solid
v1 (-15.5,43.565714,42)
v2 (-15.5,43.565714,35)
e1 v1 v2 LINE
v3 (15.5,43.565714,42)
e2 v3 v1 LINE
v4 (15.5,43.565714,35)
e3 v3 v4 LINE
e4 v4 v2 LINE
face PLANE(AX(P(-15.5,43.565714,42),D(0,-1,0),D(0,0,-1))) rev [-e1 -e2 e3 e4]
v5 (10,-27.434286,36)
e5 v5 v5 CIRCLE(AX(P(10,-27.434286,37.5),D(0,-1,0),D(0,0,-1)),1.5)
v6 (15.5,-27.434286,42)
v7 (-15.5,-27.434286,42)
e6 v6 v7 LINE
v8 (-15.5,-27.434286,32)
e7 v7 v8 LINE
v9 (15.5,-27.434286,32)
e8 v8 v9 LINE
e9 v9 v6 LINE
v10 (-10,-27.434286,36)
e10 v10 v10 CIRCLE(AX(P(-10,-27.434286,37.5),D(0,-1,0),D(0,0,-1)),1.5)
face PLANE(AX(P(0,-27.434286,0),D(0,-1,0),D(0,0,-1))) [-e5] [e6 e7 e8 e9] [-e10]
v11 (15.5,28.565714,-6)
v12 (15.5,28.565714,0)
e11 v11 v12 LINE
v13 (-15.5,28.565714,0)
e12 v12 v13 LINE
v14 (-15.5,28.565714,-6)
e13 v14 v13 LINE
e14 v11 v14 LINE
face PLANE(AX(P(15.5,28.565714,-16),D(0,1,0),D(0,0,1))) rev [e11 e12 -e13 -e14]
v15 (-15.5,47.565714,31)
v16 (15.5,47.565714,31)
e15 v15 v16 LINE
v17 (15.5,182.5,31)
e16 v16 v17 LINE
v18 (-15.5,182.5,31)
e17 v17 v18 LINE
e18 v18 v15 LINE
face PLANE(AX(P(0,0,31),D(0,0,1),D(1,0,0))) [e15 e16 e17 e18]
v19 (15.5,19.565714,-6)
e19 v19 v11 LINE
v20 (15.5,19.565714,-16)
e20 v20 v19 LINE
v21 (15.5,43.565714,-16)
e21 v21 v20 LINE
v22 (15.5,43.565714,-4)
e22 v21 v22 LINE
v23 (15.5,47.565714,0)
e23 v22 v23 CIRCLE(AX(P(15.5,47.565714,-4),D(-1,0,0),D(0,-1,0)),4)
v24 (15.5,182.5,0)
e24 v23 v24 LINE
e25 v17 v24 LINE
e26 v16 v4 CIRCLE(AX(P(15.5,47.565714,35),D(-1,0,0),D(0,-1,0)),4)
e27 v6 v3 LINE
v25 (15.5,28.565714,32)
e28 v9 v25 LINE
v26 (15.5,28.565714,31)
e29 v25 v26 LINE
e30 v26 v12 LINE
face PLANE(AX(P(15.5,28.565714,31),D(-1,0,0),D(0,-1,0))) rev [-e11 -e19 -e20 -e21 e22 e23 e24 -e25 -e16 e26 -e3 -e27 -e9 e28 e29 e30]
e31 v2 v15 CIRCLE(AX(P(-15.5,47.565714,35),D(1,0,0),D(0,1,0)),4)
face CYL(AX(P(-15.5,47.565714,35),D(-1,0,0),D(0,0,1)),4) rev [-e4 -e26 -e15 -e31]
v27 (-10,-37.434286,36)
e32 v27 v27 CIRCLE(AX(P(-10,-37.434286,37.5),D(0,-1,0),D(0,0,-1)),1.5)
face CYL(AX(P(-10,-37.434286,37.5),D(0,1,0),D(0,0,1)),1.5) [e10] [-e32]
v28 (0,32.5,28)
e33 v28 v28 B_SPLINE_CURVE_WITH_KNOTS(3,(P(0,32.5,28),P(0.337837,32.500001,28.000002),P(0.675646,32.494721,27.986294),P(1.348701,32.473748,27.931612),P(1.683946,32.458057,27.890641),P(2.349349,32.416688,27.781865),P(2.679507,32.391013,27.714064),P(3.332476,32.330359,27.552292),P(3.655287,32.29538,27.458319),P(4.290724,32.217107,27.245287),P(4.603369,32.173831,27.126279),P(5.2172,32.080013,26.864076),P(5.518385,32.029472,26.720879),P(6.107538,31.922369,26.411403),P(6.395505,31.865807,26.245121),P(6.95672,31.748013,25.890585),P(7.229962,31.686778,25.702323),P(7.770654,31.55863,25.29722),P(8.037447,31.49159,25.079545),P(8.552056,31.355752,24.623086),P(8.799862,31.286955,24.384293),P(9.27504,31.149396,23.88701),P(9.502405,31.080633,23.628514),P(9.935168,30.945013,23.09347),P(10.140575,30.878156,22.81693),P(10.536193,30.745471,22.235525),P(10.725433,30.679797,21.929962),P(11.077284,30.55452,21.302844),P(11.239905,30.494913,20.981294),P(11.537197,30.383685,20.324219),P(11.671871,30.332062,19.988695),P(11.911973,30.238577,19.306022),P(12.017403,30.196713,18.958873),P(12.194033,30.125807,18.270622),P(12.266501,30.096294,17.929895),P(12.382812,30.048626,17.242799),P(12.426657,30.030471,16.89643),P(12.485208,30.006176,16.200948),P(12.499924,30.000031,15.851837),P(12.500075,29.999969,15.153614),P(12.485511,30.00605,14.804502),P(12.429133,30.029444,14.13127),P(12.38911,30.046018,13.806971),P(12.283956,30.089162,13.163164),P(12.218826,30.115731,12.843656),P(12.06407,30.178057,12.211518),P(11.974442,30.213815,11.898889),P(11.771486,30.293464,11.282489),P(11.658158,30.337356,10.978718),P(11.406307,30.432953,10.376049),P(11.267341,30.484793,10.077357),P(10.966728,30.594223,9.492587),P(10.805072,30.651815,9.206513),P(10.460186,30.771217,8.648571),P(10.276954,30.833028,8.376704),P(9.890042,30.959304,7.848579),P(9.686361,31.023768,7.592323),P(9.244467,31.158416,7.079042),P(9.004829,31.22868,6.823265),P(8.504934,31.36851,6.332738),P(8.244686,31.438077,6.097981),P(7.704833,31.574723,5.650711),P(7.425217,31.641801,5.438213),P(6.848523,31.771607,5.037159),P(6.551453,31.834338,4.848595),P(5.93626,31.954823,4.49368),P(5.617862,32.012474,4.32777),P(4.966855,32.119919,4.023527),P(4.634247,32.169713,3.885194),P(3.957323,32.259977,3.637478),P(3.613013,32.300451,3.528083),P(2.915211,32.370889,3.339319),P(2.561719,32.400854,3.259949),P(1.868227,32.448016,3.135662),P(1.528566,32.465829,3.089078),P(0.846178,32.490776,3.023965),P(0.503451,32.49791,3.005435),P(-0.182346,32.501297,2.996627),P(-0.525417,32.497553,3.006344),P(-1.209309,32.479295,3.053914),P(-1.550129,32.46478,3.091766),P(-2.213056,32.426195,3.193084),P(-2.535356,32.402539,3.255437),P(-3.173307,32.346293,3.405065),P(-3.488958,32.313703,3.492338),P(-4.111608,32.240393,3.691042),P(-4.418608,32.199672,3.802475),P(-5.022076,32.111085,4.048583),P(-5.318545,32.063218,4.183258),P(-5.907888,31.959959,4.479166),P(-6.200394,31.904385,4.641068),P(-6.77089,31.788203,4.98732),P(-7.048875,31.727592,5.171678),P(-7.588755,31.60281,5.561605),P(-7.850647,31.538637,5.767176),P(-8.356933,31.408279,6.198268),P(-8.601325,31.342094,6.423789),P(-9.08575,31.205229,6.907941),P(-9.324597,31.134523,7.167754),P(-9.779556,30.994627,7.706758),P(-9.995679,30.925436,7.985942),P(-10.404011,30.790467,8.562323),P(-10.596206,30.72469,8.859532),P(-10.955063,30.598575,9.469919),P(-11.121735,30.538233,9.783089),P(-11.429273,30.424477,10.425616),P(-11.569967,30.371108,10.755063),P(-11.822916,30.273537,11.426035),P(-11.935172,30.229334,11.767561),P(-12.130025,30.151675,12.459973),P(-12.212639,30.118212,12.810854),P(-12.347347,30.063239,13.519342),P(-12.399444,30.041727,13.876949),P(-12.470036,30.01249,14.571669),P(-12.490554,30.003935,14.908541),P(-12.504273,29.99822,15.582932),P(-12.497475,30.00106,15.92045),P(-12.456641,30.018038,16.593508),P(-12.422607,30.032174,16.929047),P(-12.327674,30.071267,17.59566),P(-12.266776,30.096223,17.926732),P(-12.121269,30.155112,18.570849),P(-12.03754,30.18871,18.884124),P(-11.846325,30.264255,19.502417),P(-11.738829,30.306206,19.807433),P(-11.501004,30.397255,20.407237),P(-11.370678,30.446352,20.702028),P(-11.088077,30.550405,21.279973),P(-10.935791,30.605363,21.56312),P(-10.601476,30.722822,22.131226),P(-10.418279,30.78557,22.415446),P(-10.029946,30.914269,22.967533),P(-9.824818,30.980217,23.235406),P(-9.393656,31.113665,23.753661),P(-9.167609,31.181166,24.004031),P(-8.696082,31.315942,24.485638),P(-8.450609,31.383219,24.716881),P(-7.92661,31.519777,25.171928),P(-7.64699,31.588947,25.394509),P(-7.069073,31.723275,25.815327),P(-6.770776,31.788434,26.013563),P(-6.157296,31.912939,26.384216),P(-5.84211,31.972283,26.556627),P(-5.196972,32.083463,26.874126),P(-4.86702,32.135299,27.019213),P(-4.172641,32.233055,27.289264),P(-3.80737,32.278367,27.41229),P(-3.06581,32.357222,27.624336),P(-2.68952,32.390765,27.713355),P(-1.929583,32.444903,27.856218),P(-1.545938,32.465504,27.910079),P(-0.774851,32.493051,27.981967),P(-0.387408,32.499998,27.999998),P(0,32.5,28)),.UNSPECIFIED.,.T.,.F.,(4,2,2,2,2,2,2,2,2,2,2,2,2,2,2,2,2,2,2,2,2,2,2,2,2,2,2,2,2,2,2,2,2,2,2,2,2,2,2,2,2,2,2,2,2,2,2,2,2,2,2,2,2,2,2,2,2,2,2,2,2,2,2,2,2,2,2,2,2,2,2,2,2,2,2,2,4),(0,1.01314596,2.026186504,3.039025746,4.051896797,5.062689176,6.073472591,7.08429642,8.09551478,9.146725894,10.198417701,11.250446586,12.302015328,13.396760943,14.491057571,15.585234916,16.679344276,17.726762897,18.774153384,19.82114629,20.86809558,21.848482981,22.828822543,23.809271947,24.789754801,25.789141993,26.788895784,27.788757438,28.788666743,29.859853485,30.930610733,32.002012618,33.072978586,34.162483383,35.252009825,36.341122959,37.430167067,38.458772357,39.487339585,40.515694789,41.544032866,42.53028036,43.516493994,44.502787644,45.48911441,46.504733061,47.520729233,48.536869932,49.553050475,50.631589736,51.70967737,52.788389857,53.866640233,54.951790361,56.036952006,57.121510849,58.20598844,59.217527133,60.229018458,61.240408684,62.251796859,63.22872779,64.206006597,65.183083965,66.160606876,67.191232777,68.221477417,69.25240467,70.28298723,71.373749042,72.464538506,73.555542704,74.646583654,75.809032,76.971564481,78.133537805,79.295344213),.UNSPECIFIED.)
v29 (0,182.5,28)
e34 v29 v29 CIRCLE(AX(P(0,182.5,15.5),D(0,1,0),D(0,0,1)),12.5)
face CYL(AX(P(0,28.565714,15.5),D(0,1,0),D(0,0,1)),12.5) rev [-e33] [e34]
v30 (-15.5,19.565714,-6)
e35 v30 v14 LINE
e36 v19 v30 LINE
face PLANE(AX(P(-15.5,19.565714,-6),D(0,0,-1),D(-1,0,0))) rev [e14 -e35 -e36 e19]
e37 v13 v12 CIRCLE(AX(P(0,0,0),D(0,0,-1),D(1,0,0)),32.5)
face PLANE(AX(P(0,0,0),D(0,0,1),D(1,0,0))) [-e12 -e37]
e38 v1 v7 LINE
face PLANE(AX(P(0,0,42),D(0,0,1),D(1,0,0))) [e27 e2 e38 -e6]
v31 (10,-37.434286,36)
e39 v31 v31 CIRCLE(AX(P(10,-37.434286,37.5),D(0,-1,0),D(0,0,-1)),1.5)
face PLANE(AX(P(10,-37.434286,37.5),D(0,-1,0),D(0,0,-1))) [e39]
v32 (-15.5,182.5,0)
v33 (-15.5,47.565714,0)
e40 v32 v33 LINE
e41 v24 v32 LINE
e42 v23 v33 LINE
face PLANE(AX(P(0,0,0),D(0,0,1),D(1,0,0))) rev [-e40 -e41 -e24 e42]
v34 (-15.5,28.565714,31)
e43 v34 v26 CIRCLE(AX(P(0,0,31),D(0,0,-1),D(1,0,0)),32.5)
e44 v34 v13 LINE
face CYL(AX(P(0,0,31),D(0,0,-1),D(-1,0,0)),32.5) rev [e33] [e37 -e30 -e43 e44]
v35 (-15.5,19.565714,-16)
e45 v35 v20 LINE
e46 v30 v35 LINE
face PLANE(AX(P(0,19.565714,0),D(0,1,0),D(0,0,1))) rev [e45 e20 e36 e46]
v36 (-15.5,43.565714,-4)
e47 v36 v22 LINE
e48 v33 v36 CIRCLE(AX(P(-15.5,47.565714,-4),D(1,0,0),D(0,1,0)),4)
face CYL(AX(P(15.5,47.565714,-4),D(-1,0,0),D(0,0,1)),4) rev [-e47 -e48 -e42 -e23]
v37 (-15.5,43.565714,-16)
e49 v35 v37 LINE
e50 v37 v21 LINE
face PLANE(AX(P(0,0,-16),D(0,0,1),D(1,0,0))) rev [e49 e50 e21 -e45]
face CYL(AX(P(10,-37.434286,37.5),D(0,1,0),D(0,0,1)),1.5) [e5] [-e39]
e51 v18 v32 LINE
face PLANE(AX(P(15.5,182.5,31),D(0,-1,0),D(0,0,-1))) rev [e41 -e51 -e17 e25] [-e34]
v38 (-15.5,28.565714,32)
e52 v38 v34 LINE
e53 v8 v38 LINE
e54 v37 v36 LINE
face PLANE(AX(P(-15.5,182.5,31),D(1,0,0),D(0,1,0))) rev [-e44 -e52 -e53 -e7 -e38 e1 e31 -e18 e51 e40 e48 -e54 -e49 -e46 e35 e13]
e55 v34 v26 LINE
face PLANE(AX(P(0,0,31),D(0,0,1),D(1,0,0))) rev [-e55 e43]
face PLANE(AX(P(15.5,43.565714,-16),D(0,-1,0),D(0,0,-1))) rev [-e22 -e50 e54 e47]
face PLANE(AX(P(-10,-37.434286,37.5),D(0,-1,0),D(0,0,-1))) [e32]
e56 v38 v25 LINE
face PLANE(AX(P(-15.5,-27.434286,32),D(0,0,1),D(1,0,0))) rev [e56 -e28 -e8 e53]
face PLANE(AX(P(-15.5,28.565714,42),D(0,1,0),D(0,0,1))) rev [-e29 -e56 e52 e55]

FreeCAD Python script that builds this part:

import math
import FreeCAD as App
import Part
import Sketcher
from FreeCAD import Vector
Q = App.Units.Quantity


def edges_at(feature, points):
    """Names of the edges that pass closest to the given points."""
    edges = feature.Shape.Edges
    near = lambda p: min(range(len(edges)), key=lambda i: edges[i].distToShape(Part.Vertex(*p))[0])
    return sorted({f"Edge{near(p) + 1}" for p in points})


def add_polygon(sketch, points):
    """Adds a closed chain of lines whose ends are joined by coincident constraints."""
    first, n = sketch.GeometryCount, len(points)
    for a, b in zip(points, points[1:] + points[:1]):
        sketch.addGeometry(Part.LineSegment(App.Vector(*a, 0), App.Vector(*b, 0)), False)
    for i in range(n):
        sketch.addConstraint(Sketcher.Constraint("Coincident", first + i, 2, first + (i + 1) % n, 1))

doc = App.newDocument("Part")
body = doc.addObject("PartDesign::Body", "Body")

# Sketch on XY plane
sketch1 = body.newObject("Sketcher::SketchObject", "Sketch")
sketch1.AttachmentSupport = (doc.getObject("XY_Plane"), [""])
sketch1.MapMode = "FlatFace"
sketch1.addGeometry([
    Part.LineSegment(Vector(-16, 182, 0), Vector(-16, 29, 0)),
    Part.ArcOfCircle(Part.Circle(Vector(0, 0, 0), Vector(0, 0, 1), 32), math.radians(62), math.radians(118)),
    Part.LineSegment(Vector(16, 29, 0), Vector(16, 182, 0)),
    Part.LineSegment(Vector(16, 182, 0), Vector(-16, 182, 0)),
], False)
sketch1.addConstraint([
    Sketcher.Constraint("Coincident", 0, 2, 1, 2),
    Sketcher.Constraint("Coincident", 1, 1, 2, 1),
    Sketcher.Constraint("Coincident", 2, 2, 3, 1),
    Sketcher.Constraint("Coincident", 3, 2, 0, 1),
    Sketcher.Constraint("Vertical", 0),
    Sketcher.Constraint("Vertical", 2),
    Sketcher.Constraint("Horizontal", 3),
    Sketcher.Constraint("Coincident", 1, 3, -1, 1),
    Sketcher.Constraint("Horizontal", 0, 2, 1, 1),
    Sketcher.Constraint("Radius", 1, Q("32.5 mm")),
    Sketcher.Constraint("DistanceX", 3, 2, 3, 1, Q("31 mm")),
    Sketcher.Constraint("DistanceY", -1, 1, 2, 2, Q("182.5 mm")),
])
pad1 = body.newObject("PartDesign::Pad", "Pad")
pad1.Profile = sketch1
pad1.Length = 31

# Sketch on XZ plane
sketch2 = body.newObject("Sketcher::SketchObject", "Sketch001")
sketch2.AttachmentSupport = (doc.getObject("XZ_Plane"), [""])
sketch2.MapMode = "FlatFace"
sketch2.AttachmentOffset = App.Placement(Vector(0, 0, -182.5), App.Rotation())
sketch2.addGeometry(Part.Circle(Vector(0, 16, 0), Vector(0, 0, 1), 12), False)
sketch2.addConstraint([
    Sketcher.Constraint("PointOnObject", 0, 3, -2),
    Sketcher.Constraint("Diameter", 0, Q("25 mm")),
    Sketcher.Constraint("DistanceY", -1, 1, 0, 3, Q("15.5 mm")),
])
pocket1 = body.newObject("PartDesign::Pocket", "Pocket")
pocket1.Profile = sketch2
pocket1.Type = "ThroughAll"
pocket1.Reversed = True

# Sketch on XY plane
sketch3 = body.newObject("Sketcher::SketchObject", "Sketch002")
sketch3.AttachmentSupport = (doc.getObject("XY_Plane"), [""])
sketch3.MapMode = "FlatFace"
sketch3.AttachmentOffset = App.Placement(Vector(0, 0, 31), App.Rotation())
add_polygon(sketch3, [(-16, 44), (-16, 29), (16, 29), (16, 44)])  # lines 0-3
sketch3.addConstraint([
    Sketcher.Constraint("Vertical", 0),
    Sketcher.Constraint("Horizontal", 1),
    Sketcher.Constraint("Vertical", 2),
    Sketcher.Constraint("Horizontal", 3),
    Sketcher.Constraint("DistanceX", 1, 1, 1, 2, Q("31 mm")),
    Sketcher.Constraint("DistanceY", 0, 2, 0, 1, Q("15 mm")),
    Sketcher.Constraint("DistanceX", 0, 2, -1, 1, Q("15.5 mm")),
    Sketcher.Constraint("DistanceY", -1, 1, 0, 2, Q("28.565714 mm")),
])
pad2 = body.newObject("PartDesign::Pad", "Pad001")
pad2.Profile = sketch3
pad2.Length = 11

# Sketch on XZ plane
sketch4 = body.newObject("Sketcher::SketchObject", "Sketch003")
sketch4.AttachmentSupport = (doc.getObject("XZ_Plane"), [""])
sketch4.MapMode = "FlatFace"
sketch4.AttachmentOffset = App.Placement(Vector(0, 0, -28.565714), App.Rotation())
add_polygon(sketch4, [(-16, 42), (-16, 32), (16, 32), (16, 42)])  # lines 0-3
sketch4.addConstraint([
    Sketcher.Constraint("Vertical", 0),
    Sketcher.Constraint("Horizontal", 1),
    Sketcher.Constraint("Vertical", 2),
    Sketcher.Constraint("Horizontal", 3),
    Sketcher.Constraint("DistanceX", 1, 1, 1, 2, Q("31 mm")),
    Sketcher.Constraint("DistanceY", 0, 2, 0, 1, Q("10 mm")),
    Sketcher.Constraint("DistanceY", -1, 1, 0, 2, Q("32 mm")),
    Sketcher.Constraint("DistanceX", 0, 2, -1, 1, Q("15.5 mm")),
])
pad3 = body.newObject("PartDesign::Pad", "Pad002")
pad3.Profile = sketch4
pad3.Length = 56

# Sketch on XZ plane
sketch5 = body.newObject("Sketcher::SketchObject", "Sketch004")
sketch5.AttachmentSupport = (doc.getObject("XZ_Plane"), [""])
sketch5.MapMode = "FlatFace"
sketch5.AttachmentOffset = App.Placement(Vector(0, 0, 27.434286), App.Rotation())
sketch5.addGeometry([
    Part.Circle(Vector(-10, 37.5, 0), Vector(0, 0, 1), 1.5),
    Part.Circle(Vector(10, 37.5, 0), Vector(0, 0, 1), 1.5),
], False)
sketch5.addConstraint([
    Sketcher.Constraint("Equal", 0, 1),
    Sketcher.Constraint("Symmetric", 0, 3, 1, 3, -2),
    Sketcher.Constraint("Diameter", 0, Q("3 mm")),
    Sketcher.Constraint("DistanceX", 0, 3, -1, 1, Q("10 mm")),
    Sketcher.Constraint("DistanceY", -1, 1, 0, 3, Q("37.5 mm")),
])
pad4 = body.newObject("PartDesign::Pad", "Pad003")
pad4.Profile = sketch5
pad4.Length = 10

# Sketch on XY plane
sketch6 = body.newObject("Sketcher::SketchObject", "Sketch005")
sketch6.AttachmentSupport = (doc.getObject("XY_Plane"), [""])
sketch6.MapMode = "FlatFace"
add_polygon(sketch6, [(16, 44), (16, 29), (-16, 29), (-16, 44)])  # lines 0-3
sketch6.addConstraint([
    Sketcher.Constraint("Vertical", 0),
    Sketcher.Constraint("Horizontal", 1),
    Sketcher.Constraint("Vertical", 2),
    Sketcher.Constraint("Horizontal", 3),
    Sketcher.Constraint("DistanceX", 1, 2, 1, 1, Q("31 mm")),
    Sketcher.Constraint("DistanceY", 0, 2, 0, 1, Q("15 mm")),
    Sketcher.Constraint("DistanceX", -1, 1, 0, 2, Q("15.5 mm")),
    Sketcher.Constraint("DistanceY", -1, 1, 0, 2, Q("28.565714 mm")),
])
pad5 = body.newObject("PartDesign::Pad", "Pad004")
pad5.Profile = sketch6
pad5.Length = 16
pad5.Reversed = True

# Sketch on XZ plane
sketch7 = body.newObject("Sketcher::SketchObject", "Sketch006")
sketch7.AttachmentSupport = (doc.getObject("XZ_Plane"), [""])
sketch7.MapMode = "FlatFace"
sketch7.AttachmentOffset = App.Placement(Vector(0, 0, -28.565714), App.Rotation())
add_polygon(sketch7, [(-16, -6), (-16, -16), (16, -16), (16, -6)])  # lines 0-3
sketch7.addConstraint([
    Sketcher.Constraint("Vertical", 0),
    Sketcher.Constraint("Horizontal", 1),
    Sketcher.Constraint("Vertical", 2),
    Sketcher.Constraint("Horizontal", 3),
    Sketcher.Constraint("DistanceX", 1, 1, 1, 2, Q("31 mm")),
    Sketcher.Constraint("DistanceY", 0, 2, 0, 1, Q("10 mm")),
    Sketcher.Constraint("DistanceY", 0, 2, -1, 1, Q("16 mm")),
    Sketcher.Constraint("DistanceX", 0, 2, -1, 1, Q("15.5 mm")),
])
pad6 = body.newObject("PartDesign::Pad", "Pad005")
pad6.Profile = sketch7
pad6.Length = 9
doc.recompute()

fillet = body.newObject("PartDesign::Fillet", "Fillet")
fillet.Base = (pad6, edges_at(pad6, [(0, 43.566, 31), (0, 43.566, 0)]))
fillet.Radius = 4

doc.recompute()
